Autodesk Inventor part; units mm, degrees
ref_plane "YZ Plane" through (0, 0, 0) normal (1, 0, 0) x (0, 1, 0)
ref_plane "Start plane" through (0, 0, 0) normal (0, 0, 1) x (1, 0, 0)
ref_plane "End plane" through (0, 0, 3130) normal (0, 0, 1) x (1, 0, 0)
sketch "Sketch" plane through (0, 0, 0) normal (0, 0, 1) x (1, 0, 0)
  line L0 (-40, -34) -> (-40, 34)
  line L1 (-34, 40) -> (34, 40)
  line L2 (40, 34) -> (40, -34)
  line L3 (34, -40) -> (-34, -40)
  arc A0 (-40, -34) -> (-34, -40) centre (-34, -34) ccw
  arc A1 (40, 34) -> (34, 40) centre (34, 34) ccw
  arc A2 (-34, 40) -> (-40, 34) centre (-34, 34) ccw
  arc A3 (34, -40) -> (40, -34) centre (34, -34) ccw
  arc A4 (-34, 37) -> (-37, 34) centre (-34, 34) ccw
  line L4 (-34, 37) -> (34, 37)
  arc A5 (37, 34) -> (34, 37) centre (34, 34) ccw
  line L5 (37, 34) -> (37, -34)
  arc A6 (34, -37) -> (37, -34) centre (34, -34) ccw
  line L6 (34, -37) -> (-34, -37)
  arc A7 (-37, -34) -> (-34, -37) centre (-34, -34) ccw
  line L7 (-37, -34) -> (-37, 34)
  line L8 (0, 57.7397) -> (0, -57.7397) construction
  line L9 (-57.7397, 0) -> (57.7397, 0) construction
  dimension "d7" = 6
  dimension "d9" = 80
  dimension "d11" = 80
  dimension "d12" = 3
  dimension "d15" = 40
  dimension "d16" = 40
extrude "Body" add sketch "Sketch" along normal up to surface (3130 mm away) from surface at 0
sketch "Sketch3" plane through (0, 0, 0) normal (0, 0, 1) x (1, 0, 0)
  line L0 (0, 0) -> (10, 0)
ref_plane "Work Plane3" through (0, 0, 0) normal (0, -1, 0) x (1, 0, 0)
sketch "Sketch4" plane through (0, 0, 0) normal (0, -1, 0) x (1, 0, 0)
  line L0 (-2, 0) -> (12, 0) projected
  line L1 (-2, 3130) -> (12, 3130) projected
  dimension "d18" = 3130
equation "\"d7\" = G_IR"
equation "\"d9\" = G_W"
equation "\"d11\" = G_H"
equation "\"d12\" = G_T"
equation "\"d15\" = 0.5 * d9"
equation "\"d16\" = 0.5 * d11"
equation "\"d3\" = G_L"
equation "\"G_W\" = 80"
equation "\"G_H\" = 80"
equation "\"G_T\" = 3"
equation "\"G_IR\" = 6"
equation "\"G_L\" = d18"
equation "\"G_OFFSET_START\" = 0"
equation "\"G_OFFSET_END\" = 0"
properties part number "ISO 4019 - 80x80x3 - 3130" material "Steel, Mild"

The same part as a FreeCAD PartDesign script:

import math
import FreeCAD as App
import Part
import Sketcher
Q = App.Units.Quantity

doc = App.newDocument("Part")
body = doc.addObject("PartDesign::Body", "Body")

# Sketch on XY plane
sketch1 = body.newObject("Sketcher::SketchObject", "Sketch")
sketch1.AttachmentSupport = (doc.getObject("XY_Plane"), [""])
sketch1.MapMode = "FlatFace"
sketch1.addGeometry([
    Part.LineSegment(App.Vector(-40, 34, 0), App.Vector(-40, -34, 0)),  # 0
    Part.ArcOfCircle(Part.Circle(App.Vector(-34, -34, 0), App.Vector(0, 0, 1), 6), math.radians(180), math.radians(270)),  # 1
    Part.LineSegment(App.Vector(-34, -40, 0), App.Vector(34, -40, 0)),  # 2
    Part.ArcOfCircle(Part.Circle(App.Vector(34, -34, 0), App.Vector(0, 0, 1), 6), math.radians(-90), math.radians(0)),  # 3
    Part.LineSegment(App.Vector(40, -34, 0), App.Vector(40, 34, 0)),  # 4
    Part.ArcOfCircle(Part.Circle(App.Vector(34, 34, 0), App.Vector(0, 0, 1), 6), math.radians(0), math.radians(90)),  # 5
    Part.LineSegment(App.Vector(34, 40, 0), App.Vector(-34, 40, 0)),  # 6
    Part.ArcOfCircle(Part.Circle(App.Vector(-34, 34, 0), App.Vector(0, 0, 1), 6), math.radians(90), math.radians(180)),  # 7
    Part.ArcOfCircle(Part.Circle(App.Vector(-34, 34, 0), App.Vector(0, 0, 1), 3), math.radians(90), math.radians(180)),  # 8
    Part.LineSegment(App.Vector(-34, 37, 0), App.Vector(34, 37, 0)),  # 9
    Part.ArcOfCircle(Part.Circle(App.Vector(34, 34, 0), App.Vector(0, 0, 1), 3), math.radians(0), math.radians(90)),  # 10
    Part.LineSegment(App.Vector(37, 34, 0), App.Vector(37, -34, 0)),  # 11
    Part.ArcOfCircle(Part.Circle(App.Vector(34, -34, 0), App.Vector(0, 0, 1), 3), math.radians(-90), math.radians(0)),  # 12
    Part.LineSegment(App.Vector(34, -37, 0), App.Vector(-34, -37, 0)),  # 13
    Part.ArcOfCircle(Part.Circle(App.Vector(-34, -34, 0), App.Vector(0, 0, 1), 3), math.radians(180), math.radians(270)),  # 14
    Part.LineSegment(App.Vector(-37, -34, 0), App.Vector(-37, 34, 0)),  # 15
], False)
sketch1.addConstraint([
    Sketcher.Constraint("Tangent", 0, 2, 1, 1),
    Sketcher.Constraint("Tangent", 1, 2, 2, 1),
    Sketcher.Constraint("Tangent", 2, 2, 3, 1),
    Sketcher.Constraint("Tangent", 3, 2, 4, 1),
    Sketcher.Constraint("Tangent", 4, 2, 5, 1),
    Sketcher.Constraint("Tangent", 5, 2, 6, 1),
    Sketcher.Constraint("Tangent", 6, 2, 7, 1),
    Sketcher.Constraint("Tangent", 7, 2, 0, 1),
    Sketcher.Constraint("Tangent", 8, 1, 9, 1),
    Sketcher.Constraint("Tangent", 9, 2, 10, 2),
    Sketcher.Constraint("Tangent", 10, 1, 11, 1),
    Sketcher.Constraint("Tangent", 11, 2, 12, 2),
    Sketcher.Constraint("Tangent", 12, 1, 13, 1),
    Sketcher.Constraint("Tangent", 13, 2, 14, 2),
    Sketcher.Constraint("Tangent", 14, 1, 15, 1),
    Sketcher.Constraint("Tangent", 15, 2, 8, 2),
    Sketcher.Constraint("Vertical", 0),
    Sketcher.Constraint("Horizontal", 2),
    Sketcher.Constraint("Vertical", 4),
    Sketcher.Constraint("Horizontal", 6),
    Sketcher.Constraint("Horizontal", 9),
    Sketcher.Constraint("Vertical", 11),
    Sketcher.Constraint("Horizontal", 13),
    Sketcher.Constraint("Vertical", 15),
    Sketcher.Constraint("Coincident", 8, 3, 7, 3),
    Sketcher.Constraint("Coincident", 10, 3, 5, 3),
    Sketcher.Constraint("Coincident", 12, 3, 3, 3),
    Sketcher.Constraint("Equal", 1, 3),
    Sketcher.Constraint("Equal", 3, 5),
    Sketcher.Constraint("Equal", 5, 7),
    Sketcher.Constraint("Equal", 12, 14),
    Sketcher.Constraint("Symmetric", 1, 3, 5, 3, -1, 1),
    Sketcher.Constraint("Equal", 13, 0),
    Sketcher.Constraint("Radius", 1, Q("6 mm")),
    Sketcher.Constraint("Radius", 8, Q("3 mm")),
    Sketcher.Constraint("DistanceX", 0, 2, -1, 1, Q("40 mm")),
])
pad1 = body.newObject("PartDesign::Pad", "Pad")
pad1.Profile = sketch1
pad1.Length = 3130

doc.recompute()
